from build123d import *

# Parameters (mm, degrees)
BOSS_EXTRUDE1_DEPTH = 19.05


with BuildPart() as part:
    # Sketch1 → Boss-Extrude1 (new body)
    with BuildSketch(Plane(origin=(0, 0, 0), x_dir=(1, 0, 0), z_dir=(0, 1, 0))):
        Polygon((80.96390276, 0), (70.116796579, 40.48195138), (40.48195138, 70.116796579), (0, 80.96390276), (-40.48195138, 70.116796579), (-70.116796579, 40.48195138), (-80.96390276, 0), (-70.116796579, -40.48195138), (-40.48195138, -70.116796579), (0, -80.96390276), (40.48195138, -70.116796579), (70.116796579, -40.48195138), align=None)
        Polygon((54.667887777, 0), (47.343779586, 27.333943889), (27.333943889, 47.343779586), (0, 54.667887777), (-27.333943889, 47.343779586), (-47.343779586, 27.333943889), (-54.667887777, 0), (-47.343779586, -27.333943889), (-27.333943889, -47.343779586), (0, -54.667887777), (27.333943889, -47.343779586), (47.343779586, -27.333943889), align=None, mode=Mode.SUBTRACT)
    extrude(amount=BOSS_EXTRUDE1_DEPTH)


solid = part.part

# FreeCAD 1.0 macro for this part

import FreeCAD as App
import Part
import Sketcher

V = App.Vector
Q = App.Units.Quantity

doc = App.newDocument("Part")
body = doc.addObject("PartDesign::Body", "Body")

sketch1 = doc.addObject("Sketcher::SketchObject", "Sketch")
body.addObject(sketch1)
sketch1.AttachmentSupport = (doc.XZ_Plane, [""])
sketch1.MapMode = "FlatFace"
sketch1.addGeometry([
    Part.LineSegment(V(81, 0, 0), V(70, -40, 0)),
    Part.LineSegment(V(70, -40, 0), V(40, -70, 0)),
    Part.LineSegment(V(40, -70, 0), V(0, -81, 0)),
    Part.LineSegment(V(0, -81, 0), V(-40, -70, 0)),
    Part.LineSegment(V(-40, -70, 0), V(-70, -40, 0)),
    Part.LineSegment(V(-70, -40, 0), V(-81, 0, 0)),
    Part.LineSegment(V(-81, 0, 0), V(-70, 40, 0)),
    Part.LineSegment(V(-70, 40, 0), V(-40, 70, 0)),
    Part.LineSegment(V(-40, 70, 0), V(0, 81, 0)),
    Part.LineSegment(V(0, 81, 0), V(40, 70, 0)),
    Part.LineSegment(V(40, 70, 0), V(70, 40, 0)),
    Part.LineSegment(V(70, 40, 0), V(81, 0, 0)),
    Part.LineSegment(V(47, -27, 0), V(55, 0, 0)),
    Part.LineSegment(V(55, 0, 0), V(47, 27, 0)),
    Part.LineSegment(V(47, 27, 0), V(27, 47, 0)),
    Part.LineSegment(V(27, 47, 0), V(0, 55, 0)),
    Part.LineSegment(V(0, 55, 0), V(-27, 47, 0)),
    Part.LineSegment(V(-27, 47, 0), V(-47, 27, 0)),
    Part.LineSegment(V(-47, 27, 0), V(-55, 0, 0)),
    Part.LineSegment(V(-55, 0, 0), V(-47, -27, 0)),
    Part.LineSegment(V(-47, -27, 0), V(-27, -47, 0)),
    Part.LineSegment(V(-27, -47, 0), V(0, -55, 0)),
    Part.LineSegment(V(0, -55, 0), V(27, -47, 0)),
    Part.LineSegment(V(27, -47, 0), V(47, -27, 0)),
], False)
sketch1.addConstraint([
    Sketcher.Constraint("Coincident", 0, 2, 1, 1),
    Sketcher.Constraint("Coincident", 1, 2, 2, 1),
    Sketcher.Constraint("Coincident", 2, 2, 3, 1),
    Sketcher.Constraint("Coincident", 3, 2, 4, 1),
    Sketcher.Constraint("Coincident", 4, 2, 5, 1),
    Sketcher.Constraint("Coincident", 5, 2, 6, 1),
    Sketcher.Constraint("Coincident", 6, 2, 7, 1),
    Sketcher.Constraint("Coincident", 7, 2, 8, 1),
    Sketcher.Constraint("Coincident", 8, 2, 9, 1),
    Sketcher.Constraint("Coincident", 9, 2, 10, 1),
    Sketcher.Constraint("Coincident", 10, 2, 11, 1),
    Sketcher.Constraint("Coincident", 11, 2, 0, 1),
    Sketcher.Constraint("Coincident", 12, 2, 13, 1),
    Sketcher.Constraint("Coincident", 13, 2, 14, 1),
    Sketcher.Constraint("Coincident", 14, 2, 15, 1),
    Sketcher.Constraint("Coincident", 15, 2, 16, 1),
    Sketcher.Constraint("Coincident", 16, 2, 17, 1),
    Sketcher.Constraint("Coincident", 17, 2, 18, 1),
    Sketcher.Constraint("Coincident", 18, 2, 19, 1),
    Sketcher.Constraint("Coincident", 19, 2, 20, 1),
    Sketcher.Constraint("Coincident", 20, 2, 21, 1),
    Sketcher.Constraint("Coincident", 21, 2, 22, 1),
    Sketcher.Constraint("Coincident", 22, 2, 23, 1),
    Sketcher.Constraint("Coincident", 23, 2, 12, 1),
    Sketcher.Constraint("Symmetric", 0, 2, 6, 2, -1, 1),
    Sketcher.Constraint("Symmetric", 1, 2, 7, 2, -1, 1),
    Sketcher.Constraint("Symmetric", 2, 2, 8, 2, -1, 1),
    Sketcher.Constraint("Symmetric", 3, 2, 9, 2, -1, 1),
    Sketcher.Constraint("Symmetric", 4, 2, 10, 2, -1, 1),
    Sketcher.Constraint("Symmetric", 5, 2, 11, 2, -1, 1),
    Sketcher.Constraint("Symmetric", 12, 2, 18, 2, -1, 1),
    Sketcher.Constraint("Symmetric", 13, 2, 19, 2, -1, 1),
    Sketcher.Constraint("Symmetric", 14, 2, 20, 2, -1, 1),
    Sketcher.Constraint("Symmetric", 15, 2, 21, 2, -1, 1),
    Sketcher.Constraint("Symmetric", 16, 2, 22, 2, -1, 1),
    Sketcher.Constraint("Symmetric", 17, 2, 23, 2, -1, 1),
    Sketcher.Constraint("Symmetric", 1, 2, 3, 2, -2),
    Sketcher.Constraint("Symmetric", 0, 2, 4, 2, -2),
    Sketcher.Constraint("Symmetric", 14, 2, 16, 2, -2),
    Sketcher.Constraint("Symmetric", 13, 2, 17, 2, -2),
    Sketcher.Constraint("PointOnObject", 2, 2, -2),
    Sketcher.Constraint("PointOnObject", 5, 2, -1),
    Sketcher.Constraint("PointOnObject", 12, 2, -1),
    Sketcher.Constraint("PointOnObject", 15, 2, -2),
    Sketcher.Constraint("Perpendicular", 0, 3),
    Sketcher.Constraint("Perpendicular", 1, 4),
    Sketcher.Constraint("Perpendicular", 9, 12),
    Sketcher.Constraint("Parallel", 10, 14),
    Sketcher.Constraint("Perpendicular", 12, 15),
    Sketcher.Constraint("Equal", 0, 1),
    Sketcher.Constraint("Equal", 1, 2),
    Sketcher.Constraint("Equal", 13, 14),
    Sketcher.Constraint("Equal", 14, 15),
    Sketcher.Constraint("Angle", 0, Q("-105 deg")),
    Sketcher.Constraint("Distance", 0, Q("1.65 in")),
    Sketcher.Constraint("Distance", 12, Q("28.298181 mm")),
])
pad1 = doc.addObject("PartDesign::Pad", "Pad")
body.addObject(pad1)
pad1.Profile = sketch1
pad1.Length = Q("0.75 in")
pad1.Reversed = True

doc.recompute()
